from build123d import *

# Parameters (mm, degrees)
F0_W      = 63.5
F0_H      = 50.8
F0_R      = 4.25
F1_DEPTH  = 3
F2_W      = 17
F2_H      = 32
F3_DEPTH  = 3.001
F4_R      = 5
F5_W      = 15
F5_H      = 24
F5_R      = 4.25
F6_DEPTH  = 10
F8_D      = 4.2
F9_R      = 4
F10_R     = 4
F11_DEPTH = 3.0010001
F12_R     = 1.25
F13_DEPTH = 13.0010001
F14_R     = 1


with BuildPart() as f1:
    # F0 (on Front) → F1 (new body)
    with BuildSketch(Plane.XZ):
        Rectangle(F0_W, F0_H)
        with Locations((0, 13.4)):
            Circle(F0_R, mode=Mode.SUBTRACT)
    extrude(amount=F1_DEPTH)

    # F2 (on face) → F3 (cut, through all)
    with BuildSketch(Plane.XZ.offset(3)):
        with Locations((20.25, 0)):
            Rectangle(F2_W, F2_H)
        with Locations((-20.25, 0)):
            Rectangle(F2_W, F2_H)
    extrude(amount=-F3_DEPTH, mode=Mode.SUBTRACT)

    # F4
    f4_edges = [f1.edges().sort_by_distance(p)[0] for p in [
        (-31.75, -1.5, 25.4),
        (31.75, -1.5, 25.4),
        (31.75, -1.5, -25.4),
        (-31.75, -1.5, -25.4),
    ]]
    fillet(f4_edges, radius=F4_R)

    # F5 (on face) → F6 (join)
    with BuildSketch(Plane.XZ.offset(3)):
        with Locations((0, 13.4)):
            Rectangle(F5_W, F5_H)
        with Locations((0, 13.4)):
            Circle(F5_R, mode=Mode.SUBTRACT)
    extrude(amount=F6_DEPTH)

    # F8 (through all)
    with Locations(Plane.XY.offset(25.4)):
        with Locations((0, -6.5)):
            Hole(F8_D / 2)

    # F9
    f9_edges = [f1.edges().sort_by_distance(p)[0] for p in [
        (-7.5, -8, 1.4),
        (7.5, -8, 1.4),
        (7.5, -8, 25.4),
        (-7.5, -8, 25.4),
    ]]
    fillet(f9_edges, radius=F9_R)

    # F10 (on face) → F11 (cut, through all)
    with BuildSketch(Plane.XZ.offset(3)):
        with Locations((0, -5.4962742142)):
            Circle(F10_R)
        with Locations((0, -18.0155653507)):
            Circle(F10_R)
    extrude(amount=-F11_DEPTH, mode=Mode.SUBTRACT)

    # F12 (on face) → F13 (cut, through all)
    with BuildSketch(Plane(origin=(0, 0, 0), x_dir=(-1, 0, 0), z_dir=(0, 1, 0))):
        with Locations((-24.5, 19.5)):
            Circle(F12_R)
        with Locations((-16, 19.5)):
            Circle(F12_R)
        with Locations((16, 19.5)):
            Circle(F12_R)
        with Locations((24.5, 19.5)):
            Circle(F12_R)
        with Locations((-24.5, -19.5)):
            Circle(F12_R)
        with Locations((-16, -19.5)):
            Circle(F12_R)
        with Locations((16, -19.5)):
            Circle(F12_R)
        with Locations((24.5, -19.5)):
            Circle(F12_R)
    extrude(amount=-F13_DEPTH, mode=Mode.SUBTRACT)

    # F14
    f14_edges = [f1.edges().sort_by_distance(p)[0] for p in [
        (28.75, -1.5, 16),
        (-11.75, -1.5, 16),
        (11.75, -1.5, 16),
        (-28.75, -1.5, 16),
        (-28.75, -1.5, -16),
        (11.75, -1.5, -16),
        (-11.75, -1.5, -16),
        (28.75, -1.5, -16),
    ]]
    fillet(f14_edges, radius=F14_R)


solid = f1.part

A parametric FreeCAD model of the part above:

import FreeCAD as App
import Part
import Sketcher

V = App.Vector
Q = App.Units.Quantity


def edges_at(feature, points):
    """Names of the edges that pass closest to the given points."""
    edges = feature.Shape.Edges
    near = lambda p: min(range(len(edges)), key=lambda i: edges[i].distToShape(Part.Vertex(*p))[0])
    return sorted({f"Edge{near(p) + 1}" for p in points})


def add_polygon(sketch, points):
    """Adds a closed chain of lines whose ends are joined by coincident constraints."""
    first, n = sketch.GeometryCount, len(points)
    for a, b in zip(points, points[1:] + points[:1]):
        sketch.addGeometry(Part.LineSegment(App.Vector(*a, 0), App.Vector(*b, 0)), False)
    for i in range(n):
        sketch.addConstraint(Sketcher.Constraint("Coincident", first + i, 2, first + (i + 1) % n, 1))

doc = App.newDocument("Part")
params = doc.addObject("Spreadsheet::Sheet", "Params")
for row, (alias, value) in enumerate([
    ("sketch1_diameter", "8.5 mm"),
    ("sketch1_width", "63.5 mm"),
    ("sketch1_height", "50.8 mm"),
    ("pad1_length", "3 mm"),
    ("sketch2_width", "17 mm"),
    ("sketch2_height", "32 mm"),
    ("fillet_radius", "5 mm"),
    ("sketch3_diameter", "8.5 mm"),
    ("sketch3_width", "15 mm"),
    ("sketch3_height", "24 mm"),
    ("pad2_length", "10 mm"),
    ("sketch4_diameter", "4.2 mm"),
    ("hole_diameter", "4.2 mm"),
    ("fillet2_radius", "4 mm"),
    ("sketch5_diameter", "8 mm"),
    ("sketch6_diameter", "2.5 mm"),
    ("fillet3_radius", "1 mm"),
], start=1):
    params.set(f"A{row}", alias)
    params.set(f"B{row}", "=" + value)
    params.setAlias(f"B{row}", alias)

body = doc.addObject("PartDesign::Body", "Body")

sketch1 = doc.addObject("Sketcher::SketchObject", "Sketch")
body.addObject(sketch1)
sketch1.AttachmentSupport = (doc.XZ_Plane, [""])
sketch1.MapMode = "FlatFace"
add_polygon(sketch1, [(-31.75, 25.4), (-31.75, -25.4), (31.75, -25.4), (31.75, 25.4)])
sketch1.addGeometry(Part.Circle(V(0, 13.4, 0), V(0, 0, 1), 4.25), False)
sketch1.addConstraint(Sketcher.Constraint("Vertical", 0))
sketch1.addConstraint(Sketcher.Constraint("Horizontal", 1))
sketch1.addConstraint(Sketcher.Constraint("Vertical", 2))
sketch1.addConstraint(Sketcher.Constraint("Horizontal", 3))
sketch1.addConstraint(Sketcher.Constraint("Symmetric", 0, 2, 2, 2, -1, 1))
sketch1.addConstraint(Sketcher.Constraint("PointOnObject", 4, 3, -2))
sketch1.addConstraint(Sketcher.Constraint("Diameter", 4, Q("8.5 mm")))
sketch1.addConstraint(Sketcher.Constraint("DistanceX", 1, 1, 1, 2, Q("63.5 mm")))
sketch1.addConstraint(Sketcher.Constraint("DistanceY", 0, 2, 0, 1, Q("50.8 mm")))
sketch1.addConstraint(Sketcher.Constraint("DistanceY", 4, 3, 2, 2, Q("12 mm")))
sketch1.setExpression("Constraints[10]", "Params.sketch1_diameter")
sketch1.setExpression("Constraints[11]", "Params.sketch1_width")
sketch1.setExpression("Constraints[12]", "Params.sketch1_height")
pad1 = doc.addObject("PartDesign::Pad", "Pad")
body.addObject(pad1)
pad1.Profile = sketch1
pad1.setExpression("Length", "Params.pad1_length")

sketch2 = doc.addObject("Sketcher::SketchObject", "Sketch001")
body.addObject(sketch2)
sketch2.AttachmentSupport = (doc.XZ_Plane, [""])
sketch2.MapMode = "FlatFace"
sketch2.AttachmentOffset = App.Placement(V(0, 0, 3), App.Rotation())
add_polygon(sketch2, [(11.75, 16), (11.75, -16), (28.75, -16), (28.75, 16)])
add_polygon(sketch2, [(-28.75, 16), (-28.75, -16), (-11.75, -16), (-11.75, 16)])
sketch2.addConstraint(Sketcher.Constraint("Vertical", 0))
sketch2.addConstraint(Sketcher.Constraint("Horizontal", 1))
sketch2.addConstraint(Sketcher.Constraint("Vertical", 2))
sketch2.addConstraint(Sketcher.Constraint("Horizontal", 3))
sketch2.addConstraint(Sketcher.Constraint("Vertical", 4))
sketch2.addConstraint(Sketcher.Constraint("Horizontal", 5))
sketch2.addConstraint(Sketcher.Constraint("Vertical", 6))
sketch2.addConstraint(Sketcher.Constraint("Horizontal", 7))
sketch2.addConstraint(Sketcher.Constraint("Symmetric", 2, 2, 4, 2, -1, 1))
sketch2.addConstraint(Sketcher.Constraint("Symmetric", 0, 2, 6, 2, -1, 1))
sketch2.addConstraint(Sketcher.Constraint("Horizontal", 1, 2, 4, 2))
sketch2.addConstraint(Sketcher.Constraint("DistanceX", 1, 1, 1, 2, Q("17 mm")))
sketch2.addConstraint(Sketcher.Constraint("DistanceY", 0, 2, 0, 1, Q("32 mm")))
sketch2.addConstraint(Sketcher.Constraint("DistanceX", 4, 2, 0, 2, Q("40.5 mm")))
sketch2.setExpression("Constraints[19]", "Params.sketch2_width")
sketch2.setExpression("Constraints[20]", "Params.sketch2_height")
pocket1 = doc.addObject("PartDesign::Pocket", "Pocket")
body.addObject(pocket1)
pocket1.Profile = sketch2
pocket1.Type = "ThroughAll"
doc.recompute()

fillet = doc.addObject("PartDesign::Fillet", "Fillet")
body.addObject(fillet)
fillet.Base = (pocket1, edges_at(pocket1, [
    (-31.75, -1.5, 25.4),
    (31.75, -1.5, 25.4),
    (31.75, -1.5, -25.4),
    (-31.75, -1.5, -25.4),
]))
fillet.setExpression("Radius", "Params.fillet_radius")

sketch3 = doc.addObject("Sketcher::SketchObject", "Sketch002")
body.addObject(sketch3)
sketch3.AttachmentSupport = (doc.XZ_Plane, [""])
sketch3.MapMode = "FlatFace"
sketch3.AttachmentOffset = App.Placement(V(0, 0, 3), App.Rotation())
add_polygon(sketch3, [(-7.5, 25.4), (-7.5, 1.4), (7.5, 1.4), (7.5, 25.4)])
sketch3.addGeometry(Part.Circle(V(0, 13.4, 0), V(0, 0, 1), 4.25), False)
sketch3.addConstraint(Sketcher.Constraint("Vertical", 0))
sketch3.addConstraint(Sketcher.Constraint("Horizontal", 1))
sketch3.addConstraint(Sketcher.Constraint("Vertical", 2))
sketch3.addConstraint(Sketcher.Constraint("Horizontal", 3))
sketch3.addConstraint(Sketcher.Constraint("PointOnObject", 4, 3, -2))
sketch3.addConstraint(Sketcher.Constraint("Diameter", 4, Q("8.5 mm")))
sketch3.addConstraint(Sketcher.Constraint("DistanceX", 1, 1, 1, 2, Q("15 mm")))
sketch3.addConstraint(Sketcher.Constraint("DistanceY", 0, 2, 0, 1, Q("24 mm")))
sketch3.addConstraint(Sketcher.Constraint("DistanceY", 0, 2, 4, 3, Q("12 mm")))
sketch3.addConstraint(Sketcher.Constraint("DistanceY", -1, 1, 4, 3, Q("13.4 mm")))
sketch3.addConstraint(Sketcher.Constraint("DistanceX", 0, 2, -1, 1, Q("7.5 mm")))
sketch3.setExpression("Constraints[9]", "Params.sketch3_diameter")
sketch3.setExpression("Constraints[10]", "Params.sketch3_width")
sketch3.setExpression("Constraints[11]", "Params.sketch3_height")
pad2 = doc.addObject("PartDesign::Pad", "Pad001")
body.addObject(pad2)
pad2.Profile = sketch3
pad2.setExpression("Length", "Params.pad2_length")

sketch4 = doc.addObject("Sketcher::SketchObject", "Sketch003")
body.addObject(sketch4)
sketch4.AttachmentSupport = (doc.XY_Plane, [""])
sketch4.MapMode = "FlatFace"
sketch4.AttachmentOffset = App.Placement(V(0, 0, 25.4), App.Rotation())
sketch4.addGeometry(Part.Circle(V(0, -6.5, 0), V(0, 0, 1), 2.1), False)
sketch4.addConstraint(Sketcher.Constraint("PointOnObject", 0, 3, -2))
sketch4.addConstraint(Sketcher.Constraint("Diameter", 0, Q("4.2 mm")))
sketch4.addConstraint(Sketcher.Constraint("DistanceY", 0, 3, -1, 1, Q("6.5 mm")))
sketch4.setExpression("Constraints[1]", "Params.sketch4_diameter")
doc.recompute()
hole = doc.addObject("PartDesign::Hole", "Hole")
body.addObject(hole)
hole.Profile = sketch4
hole.ThreadType = "None"
hole.setExpression("Diameter", "Params.hole_diameter")
hole.DepthType = "ThroughAll"
doc.recompute()

fillet2 = doc.addObject("PartDesign::Fillet", "Fillet001")
body.addObject(fillet2)
fillet2.Base = (hole, edges_at(hole, [
    (-7.5, -8, 1.4),
    (7.5, -8, 1.4),
    (7.5, -8, 25.4),
    (-7.5, -8, 25.4),
]))
fillet2.setExpression("Radius", "Params.fillet2_radius")

sketch5 = doc.addObject("Sketcher::SketchObject", "Sketch004")
body.addObject(sketch5)
sketch5.AttachmentSupport = (doc.XZ_Plane, [""])
sketch5.MapMode = "FlatFace"
sketch5.AttachmentOffset = App.Placement(V(0, 0, 3), App.Rotation())
sketch5.addGeometry(Part.Circle(V(0, -5.496274, 0), V(0, 0, 1), 4), False)
sketch5.addGeometry(Part.Circle(V(0, -18.015565, 0), V(0, 0, 1), 4), False)
sketch5.addConstraint(Sketcher.Constraint("Equal", 0, 1))
sketch5.addConstraint(Sketcher.Constraint("PointOnObject", 0, 3, -2))
sketch5.addConstraint(Sketcher.Constraint("PointOnObject", 1, 3, -2))
sketch5.addConstraint(Sketcher.Constraint("Diameter", 0, Q("8 mm")))
sketch5.addConstraint(Sketcher.Constraint("DistanceY", 1, 3, 0, 3, Q("12.519291 mm")))
sketch5.addConstraint(Sketcher.Constraint("DistanceY", 0, 3, -1, 1, Q("5.496274 mm")))
sketch5.setExpression("Constraints[3]", "Params.sketch5_diameter")
pocket2 = doc.addObject("PartDesign::Pocket", "Pocket001")
body.addObject(pocket2)
pocket2.Profile = sketch5
pocket2.Type = "ThroughAll"

sketch6 = doc.addObject("Sketcher::SketchObject", "Sketch005")
body.addObject(sketch6)
sketch6.AttachmentSupport = (doc.XZ_Plane, [""])
sketch6.MapMode = "FlatFace"
sketch6.addGeometry(Part.Circle(V(24.5, 19.5, 0), V(0, 0, 1), 1.25), False)
sketch6.addGeometry(Part.Circle(V(16, 19.5, 0), V(0, 0, 1), 1.25), False)
sketch6.addGeometry(Part.Circle(V(-16, 19.5, 0), V(0, 0, 1), 1.25), False)
sketch6.addGeometry(Part.Circle(V(-24.5, 19.5, 0), V(0, 0, 1), 1.25), False)
sketch6.addGeometry(Part.Circle(V(24.5, -19.5, 0), V(0, 0, 1), 1.25), False)
sketch6.addGeometry(Part.Circle(V(16, -19.5, 0), V(0, 0, 1), 1.25), False)
sketch6.addGeometry(Part.Circle(V(-16, -19.5, 0), V(0, 0, 1), 1.25), False)
sketch6.addGeometry(Part.Circle(V(-24.5, -19.5, 0), V(0, 0, 1), 1.25), False)
sketch6.addConstraint(Sketcher.Constraint("Equal", 0, 1))
sketch6.addConstraint(Sketcher.Constraint("Equal", 1, 2))
sketch6.addConstraint(Sketcher.Constraint("Equal", 2, 3))
sketch6.addConstraint(Sketcher.Constraint("Equal", 3, 4))
sketch6.addConstraint(Sketcher.Constraint("Equal", 4, 5))
sketch6.addConstraint(Sketcher.Constraint("Equal", 5, 6))
sketch6.addConstraint(Sketcher.Constraint("Equal", 6, 7))
sketch6.addConstraint(Sketcher.Constraint("Symmetric", 3, 3, 4, 3, -1, 1))
sketch6.addConstraint(Sketcher.Constraint("Symmetric", 2, 3, 5, 3, -1, 1))
sketch6.addConstraint(Sketcher.Constraint("Symmetric", 1, 3, 6, 3, -1, 1))
sketch6.addConstraint(Sketcher.Constraint("Symmetric", 0, 3, 7, 3, -1, 1))
sketch6.addConstraint(Sketcher.Constraint("Symmetric", 1, 3, 2, 3, -2))
sketch6.addConstraint(Sketcher.Constraint("Symmetric", 0, 3, 3, 3, -2))
sketch6.addConstraint(Sketcher.Constraint("Horizontal", 0, 3, 1, 3))
sketch6.addConstraint(Sketcher.Constraint("Diameter", 0, Q("2.5 mm")))
sketch6.addConstraint(Sketcher.Constraint("DistanceX", -1, 1, 1, 3, Q("16 mm")))
sketch6.addConstraint(Sketcher.Constraint("DistanceX", 3, 3, 0, 3, Q("49 mm")))
sketch6.addConstraint(Sketcher.Constraint("DistanceY", 4, 3, 0, 3, Q("39 mm")))
sketch6.setExpression("Constraints[14]", "Params.sketch6_diameter")
pocket3 = doc.addObject("PartDesign::Pocket", "Pocket002")
body.addObject(pocket3)
pocket3.Profile = sketch6
pocket3.Type = "ThroughAll"
pocket3.Reversed = True
doc.recompute()

fillet3 = doc.addObject("PartDesign::Fillet", "Fillet002")
body.addObject(fillet3)
fillet3.Base = (pocket3, edges_at(pocket3, [
    (28.75, -1.5, 16),
    (-11.75, -1.5, 16),
    (11.75, -1.5, 16),
    (-28.75, -1.5, 16),
    (-28.75, -1.5, -16),
    (11.75, -1.5, -16),
    (-11.75, -1.5, -16),
    (28.75, -1.5, -16),
]))
fillet3.setExpression("Radius", "Params.fillet3_radius")

doc.recompute()
